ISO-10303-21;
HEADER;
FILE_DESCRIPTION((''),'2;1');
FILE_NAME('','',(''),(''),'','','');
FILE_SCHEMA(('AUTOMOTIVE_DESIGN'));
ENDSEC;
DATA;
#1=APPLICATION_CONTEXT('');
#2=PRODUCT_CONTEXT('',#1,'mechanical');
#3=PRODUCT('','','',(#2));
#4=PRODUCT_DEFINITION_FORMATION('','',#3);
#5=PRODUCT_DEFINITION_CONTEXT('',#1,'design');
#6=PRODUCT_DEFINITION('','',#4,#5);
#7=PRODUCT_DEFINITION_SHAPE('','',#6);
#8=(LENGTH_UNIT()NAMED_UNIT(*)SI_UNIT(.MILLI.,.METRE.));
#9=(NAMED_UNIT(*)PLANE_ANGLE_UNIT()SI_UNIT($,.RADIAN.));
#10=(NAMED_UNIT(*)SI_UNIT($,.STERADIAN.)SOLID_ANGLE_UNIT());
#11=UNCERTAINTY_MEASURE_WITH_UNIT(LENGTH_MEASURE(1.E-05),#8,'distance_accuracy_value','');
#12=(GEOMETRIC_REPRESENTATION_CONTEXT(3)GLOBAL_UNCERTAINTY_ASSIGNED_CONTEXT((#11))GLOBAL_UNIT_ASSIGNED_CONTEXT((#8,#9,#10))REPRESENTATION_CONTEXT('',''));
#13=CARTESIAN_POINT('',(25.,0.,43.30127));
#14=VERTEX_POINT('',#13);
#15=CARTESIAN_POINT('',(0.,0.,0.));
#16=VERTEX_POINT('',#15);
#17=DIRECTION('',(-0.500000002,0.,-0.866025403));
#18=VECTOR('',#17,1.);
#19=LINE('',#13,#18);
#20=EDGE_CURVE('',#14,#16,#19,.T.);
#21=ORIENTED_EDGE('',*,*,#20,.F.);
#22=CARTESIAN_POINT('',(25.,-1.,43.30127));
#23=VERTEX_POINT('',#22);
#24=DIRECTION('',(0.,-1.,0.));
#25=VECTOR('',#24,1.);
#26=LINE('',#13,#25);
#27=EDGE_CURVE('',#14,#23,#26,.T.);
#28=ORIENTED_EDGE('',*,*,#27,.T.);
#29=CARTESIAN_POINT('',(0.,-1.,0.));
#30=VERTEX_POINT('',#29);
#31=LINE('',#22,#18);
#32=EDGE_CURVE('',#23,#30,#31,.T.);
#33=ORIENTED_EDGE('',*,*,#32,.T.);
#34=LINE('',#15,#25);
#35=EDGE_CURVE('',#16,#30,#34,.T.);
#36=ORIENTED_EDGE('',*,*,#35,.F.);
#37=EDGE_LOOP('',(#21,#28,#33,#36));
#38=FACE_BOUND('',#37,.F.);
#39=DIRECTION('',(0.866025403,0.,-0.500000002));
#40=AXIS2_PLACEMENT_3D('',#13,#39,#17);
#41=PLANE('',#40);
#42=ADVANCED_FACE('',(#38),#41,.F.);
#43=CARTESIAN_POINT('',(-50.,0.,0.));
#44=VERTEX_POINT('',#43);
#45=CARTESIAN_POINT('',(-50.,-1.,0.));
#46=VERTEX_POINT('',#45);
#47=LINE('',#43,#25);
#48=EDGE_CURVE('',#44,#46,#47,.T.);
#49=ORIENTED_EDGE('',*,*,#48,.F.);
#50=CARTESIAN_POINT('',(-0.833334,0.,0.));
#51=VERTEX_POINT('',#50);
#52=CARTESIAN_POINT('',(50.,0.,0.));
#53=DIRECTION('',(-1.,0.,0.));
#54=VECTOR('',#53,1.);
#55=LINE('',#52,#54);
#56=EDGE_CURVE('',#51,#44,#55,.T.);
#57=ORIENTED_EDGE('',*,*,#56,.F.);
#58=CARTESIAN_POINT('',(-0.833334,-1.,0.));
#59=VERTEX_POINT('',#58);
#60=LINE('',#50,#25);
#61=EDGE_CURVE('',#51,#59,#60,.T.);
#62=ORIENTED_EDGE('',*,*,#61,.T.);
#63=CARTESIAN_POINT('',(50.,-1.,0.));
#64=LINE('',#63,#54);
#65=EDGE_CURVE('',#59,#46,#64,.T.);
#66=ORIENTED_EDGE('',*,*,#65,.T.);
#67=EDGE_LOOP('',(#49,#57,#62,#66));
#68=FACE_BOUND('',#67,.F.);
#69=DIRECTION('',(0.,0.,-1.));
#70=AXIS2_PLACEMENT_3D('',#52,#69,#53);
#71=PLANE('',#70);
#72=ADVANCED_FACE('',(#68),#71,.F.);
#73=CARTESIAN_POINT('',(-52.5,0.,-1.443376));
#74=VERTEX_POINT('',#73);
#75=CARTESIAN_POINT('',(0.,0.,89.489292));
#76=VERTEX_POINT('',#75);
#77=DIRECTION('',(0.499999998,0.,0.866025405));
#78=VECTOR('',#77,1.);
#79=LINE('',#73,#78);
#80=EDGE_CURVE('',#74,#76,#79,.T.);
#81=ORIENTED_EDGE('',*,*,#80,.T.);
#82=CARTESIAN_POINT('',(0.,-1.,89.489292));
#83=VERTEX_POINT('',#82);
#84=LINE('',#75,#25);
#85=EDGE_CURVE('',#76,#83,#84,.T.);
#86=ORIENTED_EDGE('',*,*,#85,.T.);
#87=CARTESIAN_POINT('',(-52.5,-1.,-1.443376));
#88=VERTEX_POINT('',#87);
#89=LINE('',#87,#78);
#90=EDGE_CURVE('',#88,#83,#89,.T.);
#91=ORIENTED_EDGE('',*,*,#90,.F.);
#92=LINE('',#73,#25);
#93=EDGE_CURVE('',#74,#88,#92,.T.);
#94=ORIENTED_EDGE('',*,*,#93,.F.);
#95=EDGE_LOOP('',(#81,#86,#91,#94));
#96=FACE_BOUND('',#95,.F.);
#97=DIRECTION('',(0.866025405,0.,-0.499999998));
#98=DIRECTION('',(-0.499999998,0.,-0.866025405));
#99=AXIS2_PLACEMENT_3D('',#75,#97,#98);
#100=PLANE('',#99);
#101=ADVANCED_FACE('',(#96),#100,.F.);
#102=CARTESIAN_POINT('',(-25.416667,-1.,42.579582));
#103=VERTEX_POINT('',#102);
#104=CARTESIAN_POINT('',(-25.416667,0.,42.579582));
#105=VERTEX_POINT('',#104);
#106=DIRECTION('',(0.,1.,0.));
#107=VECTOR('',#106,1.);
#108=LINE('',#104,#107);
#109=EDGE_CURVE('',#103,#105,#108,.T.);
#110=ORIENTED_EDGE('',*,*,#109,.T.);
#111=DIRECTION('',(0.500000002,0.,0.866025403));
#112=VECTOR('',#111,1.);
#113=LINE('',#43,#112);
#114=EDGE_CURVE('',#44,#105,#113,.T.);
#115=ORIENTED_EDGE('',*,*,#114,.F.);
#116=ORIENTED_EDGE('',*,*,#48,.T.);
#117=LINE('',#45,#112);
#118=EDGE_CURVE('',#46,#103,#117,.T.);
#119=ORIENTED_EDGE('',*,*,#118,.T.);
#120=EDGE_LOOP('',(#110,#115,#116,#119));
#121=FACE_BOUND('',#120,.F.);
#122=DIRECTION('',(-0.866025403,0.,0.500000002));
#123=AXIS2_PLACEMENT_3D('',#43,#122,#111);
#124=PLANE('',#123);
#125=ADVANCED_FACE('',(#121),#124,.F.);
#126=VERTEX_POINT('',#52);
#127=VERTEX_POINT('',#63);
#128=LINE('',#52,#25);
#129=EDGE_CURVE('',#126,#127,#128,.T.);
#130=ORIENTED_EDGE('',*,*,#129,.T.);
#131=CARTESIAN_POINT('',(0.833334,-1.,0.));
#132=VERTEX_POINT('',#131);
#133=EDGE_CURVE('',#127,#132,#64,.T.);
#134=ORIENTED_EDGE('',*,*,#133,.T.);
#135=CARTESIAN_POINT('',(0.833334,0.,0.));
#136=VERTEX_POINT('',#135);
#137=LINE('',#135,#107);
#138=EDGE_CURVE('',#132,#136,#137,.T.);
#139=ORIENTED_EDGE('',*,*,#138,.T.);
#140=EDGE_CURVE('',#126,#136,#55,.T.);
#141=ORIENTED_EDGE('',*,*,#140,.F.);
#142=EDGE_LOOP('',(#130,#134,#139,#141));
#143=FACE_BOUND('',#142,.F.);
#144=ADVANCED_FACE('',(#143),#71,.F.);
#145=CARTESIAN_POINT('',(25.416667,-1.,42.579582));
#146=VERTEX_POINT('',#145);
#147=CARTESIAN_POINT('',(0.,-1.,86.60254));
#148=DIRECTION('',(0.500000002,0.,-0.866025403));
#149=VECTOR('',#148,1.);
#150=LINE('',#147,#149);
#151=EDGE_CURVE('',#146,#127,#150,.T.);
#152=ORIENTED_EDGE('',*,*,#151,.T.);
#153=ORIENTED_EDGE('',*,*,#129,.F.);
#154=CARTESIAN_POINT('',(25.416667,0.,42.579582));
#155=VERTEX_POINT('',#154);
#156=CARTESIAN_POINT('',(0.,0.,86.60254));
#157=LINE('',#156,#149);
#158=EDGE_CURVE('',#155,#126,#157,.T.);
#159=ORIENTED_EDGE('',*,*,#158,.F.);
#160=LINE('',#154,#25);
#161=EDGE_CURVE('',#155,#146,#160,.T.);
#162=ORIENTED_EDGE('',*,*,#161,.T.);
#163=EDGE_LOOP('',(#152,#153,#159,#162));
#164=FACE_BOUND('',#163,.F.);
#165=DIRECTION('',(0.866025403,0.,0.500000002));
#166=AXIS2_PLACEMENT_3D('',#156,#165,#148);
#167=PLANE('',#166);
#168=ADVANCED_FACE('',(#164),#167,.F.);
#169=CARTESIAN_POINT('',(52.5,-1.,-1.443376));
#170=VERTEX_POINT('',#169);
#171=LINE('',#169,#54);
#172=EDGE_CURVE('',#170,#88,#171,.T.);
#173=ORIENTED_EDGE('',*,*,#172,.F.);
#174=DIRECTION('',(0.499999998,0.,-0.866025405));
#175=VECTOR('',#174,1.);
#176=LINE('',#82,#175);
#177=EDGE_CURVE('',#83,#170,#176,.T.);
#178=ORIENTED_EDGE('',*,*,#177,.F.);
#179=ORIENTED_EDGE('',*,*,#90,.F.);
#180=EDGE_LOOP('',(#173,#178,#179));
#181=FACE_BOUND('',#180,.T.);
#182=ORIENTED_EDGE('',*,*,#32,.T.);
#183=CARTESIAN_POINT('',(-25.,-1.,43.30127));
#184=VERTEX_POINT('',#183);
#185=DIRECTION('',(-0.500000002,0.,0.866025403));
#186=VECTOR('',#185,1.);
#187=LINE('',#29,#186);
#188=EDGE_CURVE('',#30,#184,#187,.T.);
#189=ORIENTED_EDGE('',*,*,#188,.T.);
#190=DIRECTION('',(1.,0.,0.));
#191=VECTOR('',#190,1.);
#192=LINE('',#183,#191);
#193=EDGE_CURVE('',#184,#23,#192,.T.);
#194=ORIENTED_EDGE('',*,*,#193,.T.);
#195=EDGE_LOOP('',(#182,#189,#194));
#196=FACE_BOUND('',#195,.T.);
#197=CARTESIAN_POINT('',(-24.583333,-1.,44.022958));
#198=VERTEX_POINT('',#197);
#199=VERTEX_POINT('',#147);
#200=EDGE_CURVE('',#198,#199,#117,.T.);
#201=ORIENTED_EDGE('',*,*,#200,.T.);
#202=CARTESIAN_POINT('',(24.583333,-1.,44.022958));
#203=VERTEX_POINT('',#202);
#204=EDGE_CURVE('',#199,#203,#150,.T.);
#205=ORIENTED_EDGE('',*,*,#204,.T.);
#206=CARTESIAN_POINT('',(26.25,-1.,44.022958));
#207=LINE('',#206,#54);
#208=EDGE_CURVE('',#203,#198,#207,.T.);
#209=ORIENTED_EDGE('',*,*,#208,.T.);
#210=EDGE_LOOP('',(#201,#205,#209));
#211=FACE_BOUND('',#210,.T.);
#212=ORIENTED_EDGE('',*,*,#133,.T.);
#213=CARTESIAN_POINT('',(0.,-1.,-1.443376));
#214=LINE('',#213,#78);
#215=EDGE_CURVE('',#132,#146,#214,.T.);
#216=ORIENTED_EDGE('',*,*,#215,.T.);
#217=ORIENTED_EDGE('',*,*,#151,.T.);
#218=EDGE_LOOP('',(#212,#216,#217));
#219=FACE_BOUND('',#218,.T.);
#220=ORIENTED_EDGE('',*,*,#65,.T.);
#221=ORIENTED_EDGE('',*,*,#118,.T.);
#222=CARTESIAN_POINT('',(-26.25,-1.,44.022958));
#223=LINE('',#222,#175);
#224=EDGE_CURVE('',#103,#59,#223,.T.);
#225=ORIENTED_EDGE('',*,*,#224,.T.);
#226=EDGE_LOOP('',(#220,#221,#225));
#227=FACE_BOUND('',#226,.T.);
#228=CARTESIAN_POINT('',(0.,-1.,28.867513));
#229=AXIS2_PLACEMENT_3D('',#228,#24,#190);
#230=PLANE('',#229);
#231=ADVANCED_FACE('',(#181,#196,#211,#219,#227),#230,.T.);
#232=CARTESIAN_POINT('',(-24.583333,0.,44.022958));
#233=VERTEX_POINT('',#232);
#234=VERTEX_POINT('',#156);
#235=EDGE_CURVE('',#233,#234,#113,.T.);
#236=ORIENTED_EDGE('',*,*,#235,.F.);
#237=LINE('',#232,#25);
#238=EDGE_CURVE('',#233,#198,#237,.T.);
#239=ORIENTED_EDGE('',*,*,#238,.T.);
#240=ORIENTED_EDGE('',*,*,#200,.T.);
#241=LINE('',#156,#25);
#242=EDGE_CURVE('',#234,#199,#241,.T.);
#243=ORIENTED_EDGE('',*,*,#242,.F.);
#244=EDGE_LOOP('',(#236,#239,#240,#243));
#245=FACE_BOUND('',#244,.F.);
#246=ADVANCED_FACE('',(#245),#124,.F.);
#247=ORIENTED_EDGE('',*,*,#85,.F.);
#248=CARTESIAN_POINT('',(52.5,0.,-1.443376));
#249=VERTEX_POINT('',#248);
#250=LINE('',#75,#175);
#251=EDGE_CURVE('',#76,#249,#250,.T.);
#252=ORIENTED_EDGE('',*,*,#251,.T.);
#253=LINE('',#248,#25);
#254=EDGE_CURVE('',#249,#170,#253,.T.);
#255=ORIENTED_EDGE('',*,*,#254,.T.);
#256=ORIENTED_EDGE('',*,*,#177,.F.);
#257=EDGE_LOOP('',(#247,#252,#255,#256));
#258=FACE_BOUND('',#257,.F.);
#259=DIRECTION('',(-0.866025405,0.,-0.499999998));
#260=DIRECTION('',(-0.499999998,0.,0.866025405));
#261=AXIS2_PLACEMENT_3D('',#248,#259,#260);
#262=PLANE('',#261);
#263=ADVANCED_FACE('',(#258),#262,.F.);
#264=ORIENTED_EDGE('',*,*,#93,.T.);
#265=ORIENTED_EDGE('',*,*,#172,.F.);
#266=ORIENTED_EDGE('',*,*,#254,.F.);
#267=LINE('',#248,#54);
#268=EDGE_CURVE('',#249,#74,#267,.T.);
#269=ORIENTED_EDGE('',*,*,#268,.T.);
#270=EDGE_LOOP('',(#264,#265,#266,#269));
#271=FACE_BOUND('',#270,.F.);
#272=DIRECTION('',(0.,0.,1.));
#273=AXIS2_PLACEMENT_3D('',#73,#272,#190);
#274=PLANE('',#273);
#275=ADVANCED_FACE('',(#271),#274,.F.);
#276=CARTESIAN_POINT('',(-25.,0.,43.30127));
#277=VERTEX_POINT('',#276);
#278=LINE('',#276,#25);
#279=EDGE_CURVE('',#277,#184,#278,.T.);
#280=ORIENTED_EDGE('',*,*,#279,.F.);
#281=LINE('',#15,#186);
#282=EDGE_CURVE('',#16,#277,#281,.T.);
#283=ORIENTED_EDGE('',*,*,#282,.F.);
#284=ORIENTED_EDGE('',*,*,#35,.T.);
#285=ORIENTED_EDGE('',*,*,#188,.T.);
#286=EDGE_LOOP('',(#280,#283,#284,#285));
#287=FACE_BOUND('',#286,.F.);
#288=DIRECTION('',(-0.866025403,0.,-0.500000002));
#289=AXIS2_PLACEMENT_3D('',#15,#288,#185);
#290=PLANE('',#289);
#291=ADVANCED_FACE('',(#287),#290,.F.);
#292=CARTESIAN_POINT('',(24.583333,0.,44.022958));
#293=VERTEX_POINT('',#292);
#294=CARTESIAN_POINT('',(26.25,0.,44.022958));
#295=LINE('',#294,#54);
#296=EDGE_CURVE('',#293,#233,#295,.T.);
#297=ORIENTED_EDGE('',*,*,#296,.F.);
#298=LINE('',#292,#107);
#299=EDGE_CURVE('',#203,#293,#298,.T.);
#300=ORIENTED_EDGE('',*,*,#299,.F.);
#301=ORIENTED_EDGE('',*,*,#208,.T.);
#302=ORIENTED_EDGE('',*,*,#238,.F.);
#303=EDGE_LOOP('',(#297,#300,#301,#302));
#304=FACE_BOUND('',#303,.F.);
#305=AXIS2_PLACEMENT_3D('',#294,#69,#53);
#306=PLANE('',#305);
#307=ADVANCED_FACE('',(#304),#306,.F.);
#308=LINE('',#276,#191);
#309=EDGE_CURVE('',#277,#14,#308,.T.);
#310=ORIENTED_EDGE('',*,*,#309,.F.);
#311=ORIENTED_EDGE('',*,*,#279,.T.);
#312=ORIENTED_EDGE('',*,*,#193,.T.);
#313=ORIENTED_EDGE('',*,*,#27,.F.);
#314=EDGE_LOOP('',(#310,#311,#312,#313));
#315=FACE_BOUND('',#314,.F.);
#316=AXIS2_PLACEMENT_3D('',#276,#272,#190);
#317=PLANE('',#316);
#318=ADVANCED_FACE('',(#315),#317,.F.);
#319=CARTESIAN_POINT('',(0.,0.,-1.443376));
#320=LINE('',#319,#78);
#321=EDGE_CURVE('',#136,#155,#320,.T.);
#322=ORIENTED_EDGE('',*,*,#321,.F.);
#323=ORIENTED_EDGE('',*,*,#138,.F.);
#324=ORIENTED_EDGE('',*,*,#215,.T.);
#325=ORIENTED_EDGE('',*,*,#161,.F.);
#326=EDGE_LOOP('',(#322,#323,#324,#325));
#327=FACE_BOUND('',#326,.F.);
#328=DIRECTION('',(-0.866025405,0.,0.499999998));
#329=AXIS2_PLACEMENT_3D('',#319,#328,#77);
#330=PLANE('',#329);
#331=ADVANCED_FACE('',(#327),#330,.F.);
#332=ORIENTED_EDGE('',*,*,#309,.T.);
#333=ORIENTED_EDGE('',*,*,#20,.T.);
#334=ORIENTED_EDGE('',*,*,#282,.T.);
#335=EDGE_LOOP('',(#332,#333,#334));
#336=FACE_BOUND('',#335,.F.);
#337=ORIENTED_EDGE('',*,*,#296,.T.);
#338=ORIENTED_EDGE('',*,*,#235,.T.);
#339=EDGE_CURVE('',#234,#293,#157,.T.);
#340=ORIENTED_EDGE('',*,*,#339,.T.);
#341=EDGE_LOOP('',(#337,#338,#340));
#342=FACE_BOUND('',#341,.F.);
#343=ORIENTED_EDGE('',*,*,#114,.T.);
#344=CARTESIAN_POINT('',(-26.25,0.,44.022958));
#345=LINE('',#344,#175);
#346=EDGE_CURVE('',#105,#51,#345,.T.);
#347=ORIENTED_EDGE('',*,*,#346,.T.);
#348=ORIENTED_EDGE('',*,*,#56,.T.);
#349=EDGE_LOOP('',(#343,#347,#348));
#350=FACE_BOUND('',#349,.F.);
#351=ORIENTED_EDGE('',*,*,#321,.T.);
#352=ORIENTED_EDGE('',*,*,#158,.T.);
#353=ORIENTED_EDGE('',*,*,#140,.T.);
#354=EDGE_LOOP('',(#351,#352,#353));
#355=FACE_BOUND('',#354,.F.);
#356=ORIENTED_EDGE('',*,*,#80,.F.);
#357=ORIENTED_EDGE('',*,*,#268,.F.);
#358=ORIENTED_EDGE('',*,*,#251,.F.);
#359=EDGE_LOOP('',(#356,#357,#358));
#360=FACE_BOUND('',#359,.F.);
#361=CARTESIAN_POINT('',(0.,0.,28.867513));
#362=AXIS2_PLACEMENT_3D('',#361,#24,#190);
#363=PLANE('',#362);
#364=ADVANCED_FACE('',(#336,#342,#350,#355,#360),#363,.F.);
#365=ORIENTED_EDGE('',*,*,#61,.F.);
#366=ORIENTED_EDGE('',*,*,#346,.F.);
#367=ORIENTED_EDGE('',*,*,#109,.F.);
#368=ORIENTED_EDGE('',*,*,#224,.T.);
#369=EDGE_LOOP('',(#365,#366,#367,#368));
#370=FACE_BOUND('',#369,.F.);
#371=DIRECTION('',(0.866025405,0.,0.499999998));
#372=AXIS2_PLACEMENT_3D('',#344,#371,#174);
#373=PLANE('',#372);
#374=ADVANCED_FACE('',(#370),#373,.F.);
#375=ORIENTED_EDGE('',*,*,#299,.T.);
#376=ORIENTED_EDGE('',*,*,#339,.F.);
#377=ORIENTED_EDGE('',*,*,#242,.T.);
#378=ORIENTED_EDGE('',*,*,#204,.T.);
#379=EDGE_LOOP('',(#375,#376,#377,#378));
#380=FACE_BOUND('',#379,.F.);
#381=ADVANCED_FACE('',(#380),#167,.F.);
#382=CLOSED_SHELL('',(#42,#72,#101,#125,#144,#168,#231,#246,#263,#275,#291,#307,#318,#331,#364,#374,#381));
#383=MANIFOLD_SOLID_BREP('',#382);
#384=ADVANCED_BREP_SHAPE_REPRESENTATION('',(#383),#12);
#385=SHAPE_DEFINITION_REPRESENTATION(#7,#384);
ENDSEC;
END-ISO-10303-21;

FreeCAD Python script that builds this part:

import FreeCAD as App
import Part
import Sketcher

V = App.Vector
Q = App.Units.Quantity

doc = App.newDocument("Part")
body = doc.addObject("PartDesign::Body", "Body")

# Sketch on XZ plane
sketch1 = body.newObject("Sketcher::SketchObject", "Sketch")
sketch1.AttachmentSupport = (doc.getObject("XZ_Plane"), [""])
sketch1.MapMode = "FlatFace"
sketch1.addGeometry([
    Part.LineSegment(V(52, -1, 0), V(0, 89, 0)),  # 0
    Part.LineSegment(V(0, 89, 0), V(-52, -1, 0)),  # 1
    Part.LineSegment(V(-52, -1, 0), V(52, -1, 0)),  # 2
    Part.LineSegment(V(0, 87, 0), V(50, 0, 0)),  # 3
    Part.LineSegment(V(50, 0, 0), V(-50, 0, 0)),  # 4
    Part.LineSegment(V(-50, 0, 0), V(0, 87, 0)),  # 5
], False)
sketch1.addConstraint([
    Sketcher.Constraint("Coincident", 0, 2, 1, 1),
    Sketcher.Constraint("Coincident", 1, 2, 2, 1),
    Sketcher.Constraint("Coincident", 2, 2, 0, 1),
    Sketcher.Constraint("Coincident", 3, 2, 4, 1),
    Sketcher.Constraint("Coincident", 4, 2, 5, 1),
    Sketcher.Constraint("Coincident", 5, 2, 3, 1),
    Sketcher.Constraint("Horizontal", 2),
    Sketcher.Constraint("Horizontal", 4),
    Sketcher.Constraint("Symmetric", 3, 2, 4, 2, -1, 1),
    Sketcher.Constraint("PointOnObject", 0, 2, -2),
    Sketcher.Constraint("PointOnObject", 5, 2, -2),
    Sketcher.Constraint("Parallel", 0, 3),
    Sketcher.Constraint("Parallel", 1, 5),
    Sketcher.Constraint("DistanceX", 2, 1, 2, 2, Q("105 mm")),
    Sketcher.Constraint("DistanceX", 4, 2, 4, 1, Q("100 mm")),
    Sketcher.Constraint("Angle", 0, Q("120 deg")),
    Sketcher.Constraint("DistanceY", -1, 1, 0, 2, Q("89.489292 mm")),
])
pad1 = body.newObject("PartDesign::Pad", "Pad")
pad1.Profile = sketch1
pad1.Length = 1

# Sketch on XZ plane
sketch2 = body.newObject("Sketcher::SketchObject", "Sketch001")
sketch2.AttachmentSupport = (doc.getObject("XZ_Plane"), [""])
sketch2.MapMode = "FlatFace"
sketch2.addGeometry([
    Part.LineSegment(V(26, 44, 0), V(-26, 44, 0)),  # 0
    Part.LineSegment(V(-26, 44, 0), V(0, -1, 0)),  # 1
    Part.LineSegment(V(0, -1, 0), V(26, 44, 0)),  # 2
    Part.LineSegment(V(-25, 43, 0), V(25, 43, 0)),  # 3
    Part.LineSegment(V(25, 43, 0), V(0, 0, 0)),  # 4
    Part.LineSegment(V(0, 0, 0), V(-25, 43, 0)),  # 5
], False)
sketch2.addConstraint([
    Sketcher.Constraint("Coincident", 0, 2, 1, 1),
    Sketcher.Constraint("Coincident", 1, 2, 2, 1),
    Sketcher.Constraint("Coincident", 2, 2, 0, 1),
    Sketcher.Constraint("Coincident", 3, 2, 4, 1),
    Sketcher.Constraint("Coincident", 4, 2, 5, 1),
    Sketcher.Constraint("Coincident", 5, 2, 3, 1),
    Sketcher.Constraint("Horizontal", 0),
    Sketcher.Constraint("Horizontal", 3),
    Sketcher.Constraint("Coincident", 4, 2, -1, 1),
    Sketcher.Constraint("PointOnObject", 1, 2, -2),
    Sketcher.Constraint("Parallel", 2, 4),
    Sketcher.Constraint("Parallel", 1, 5),
    Sketcher.Constraint("Equal", 1, 2),
    Sketcher.Constraint("DistanceX", 3, 1, 3, 2, Q("50 mm")),
    Sketcher.Constraint("Angle", 1, Q("-60 deg")),
    Sketcher.Constraint("DistanceX", 0, 2, 0, 1, Q("52.5 mm")),
    Sketcher.Constraint("DistanceY", -1, 1, 0, 2, Q("44.022958 mm")),
])
pad2 = body.newObject("PartDesign::Pad", "Pad001")
pad2.Profile = sketch2
pad2.Length = 1

doc.recompute()
